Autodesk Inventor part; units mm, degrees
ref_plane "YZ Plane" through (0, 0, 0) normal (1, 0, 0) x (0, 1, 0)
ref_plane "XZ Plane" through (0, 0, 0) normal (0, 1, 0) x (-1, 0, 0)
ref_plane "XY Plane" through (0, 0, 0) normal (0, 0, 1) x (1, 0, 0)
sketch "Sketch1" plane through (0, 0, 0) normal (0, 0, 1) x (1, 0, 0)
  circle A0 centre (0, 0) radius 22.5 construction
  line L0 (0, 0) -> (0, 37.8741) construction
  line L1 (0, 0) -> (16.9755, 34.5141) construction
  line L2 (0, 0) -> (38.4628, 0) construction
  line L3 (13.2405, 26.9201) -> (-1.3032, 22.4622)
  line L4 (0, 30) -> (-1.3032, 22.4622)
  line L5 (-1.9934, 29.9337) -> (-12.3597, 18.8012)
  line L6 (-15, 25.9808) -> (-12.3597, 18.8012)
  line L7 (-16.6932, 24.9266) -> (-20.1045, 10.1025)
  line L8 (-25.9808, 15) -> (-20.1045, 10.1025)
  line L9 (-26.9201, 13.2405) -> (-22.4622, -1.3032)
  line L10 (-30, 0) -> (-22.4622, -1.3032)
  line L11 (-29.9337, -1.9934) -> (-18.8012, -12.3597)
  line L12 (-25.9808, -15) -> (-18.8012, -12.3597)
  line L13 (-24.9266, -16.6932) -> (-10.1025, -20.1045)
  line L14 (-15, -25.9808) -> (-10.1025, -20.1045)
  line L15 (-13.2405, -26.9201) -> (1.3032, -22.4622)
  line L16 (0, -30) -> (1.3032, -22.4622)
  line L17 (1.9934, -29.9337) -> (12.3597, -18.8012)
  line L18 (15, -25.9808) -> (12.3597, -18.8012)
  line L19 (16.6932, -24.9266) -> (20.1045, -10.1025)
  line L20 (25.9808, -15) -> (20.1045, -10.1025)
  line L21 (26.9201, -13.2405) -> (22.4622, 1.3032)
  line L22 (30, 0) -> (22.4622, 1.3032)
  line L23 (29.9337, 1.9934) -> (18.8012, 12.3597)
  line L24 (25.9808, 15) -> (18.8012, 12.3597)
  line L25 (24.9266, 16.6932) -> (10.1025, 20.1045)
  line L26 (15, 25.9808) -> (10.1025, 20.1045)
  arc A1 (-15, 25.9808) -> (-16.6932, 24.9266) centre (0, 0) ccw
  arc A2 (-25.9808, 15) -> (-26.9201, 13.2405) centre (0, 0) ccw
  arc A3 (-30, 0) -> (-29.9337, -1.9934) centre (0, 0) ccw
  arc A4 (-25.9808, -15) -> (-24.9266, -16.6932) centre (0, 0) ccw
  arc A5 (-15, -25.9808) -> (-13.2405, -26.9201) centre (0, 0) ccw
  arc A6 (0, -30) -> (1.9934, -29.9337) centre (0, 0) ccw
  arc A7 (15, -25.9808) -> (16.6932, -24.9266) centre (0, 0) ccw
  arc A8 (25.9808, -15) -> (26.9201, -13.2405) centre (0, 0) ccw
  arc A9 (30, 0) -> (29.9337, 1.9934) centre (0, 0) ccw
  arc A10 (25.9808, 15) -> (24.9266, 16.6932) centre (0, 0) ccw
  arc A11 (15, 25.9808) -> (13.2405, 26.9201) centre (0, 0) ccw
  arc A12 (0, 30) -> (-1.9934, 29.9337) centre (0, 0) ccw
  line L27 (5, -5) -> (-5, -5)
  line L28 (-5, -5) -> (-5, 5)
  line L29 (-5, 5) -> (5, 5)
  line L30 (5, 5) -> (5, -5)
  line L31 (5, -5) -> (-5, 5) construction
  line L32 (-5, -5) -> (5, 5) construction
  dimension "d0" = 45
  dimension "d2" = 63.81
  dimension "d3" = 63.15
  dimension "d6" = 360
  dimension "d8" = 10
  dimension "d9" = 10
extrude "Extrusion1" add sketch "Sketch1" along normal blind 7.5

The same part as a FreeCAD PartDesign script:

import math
import FreeCAD as App
import Part
import Sketcher
from FreeCAD import Vector
Q = App.Units.Quantity


def add_polygon(sketch, points):
    """Adds a closed chain of lines whose ends are joined by coincident constraints."""
    first, n = sketch.GeometryCount, len(points)
    for a, b in zip(points, points[1:] + points[:1]):
        sketch.addGeometry(Part.LineSegment(App.Vector(*a, 0), App.Vector(*b, 0)), False)
    for i in range(n):
        sketch.addConstraint(Sketcher.Constraint("Coincident", first + i, 2, first + (i + 1) % n, 1))

doc = App.newDocument("Part")
body = doc.addObject("PartDesign::Body", "Body")

# Sketch on XY plane
sketch1 = doc.addObject("Sketcher::SketchObject", "Sketch")
body.addObject(sketch1)
sketch1.AttachmentSupport = (doc.XY_Plane, [""])
sketch1.MapMode = "FlatFace"
sketch1.addGeometry(Part.ArcOfCircle(Part.Circle(Vector(-0.004802, -0.008646, 0), Vector(0, 0, 1), 30.009922), math.radians(60.00035), math.radians(63.809052)), False)  # 0
sketch1.addGeometry(Part.LineSegment(Vector(13.2405, 26.9201, 0), Vector(-1.3032, 22.4622, 0)), False)  # 1
sketch1.addGeometry(Part.LineSegment(Vector(-1.3032, 22.4622, 0), Vector(0, 30, 0)), False)  # 2
sketch1.addGeometry(Part.ArcOfCircle(Part.Circle(Vector(0, 0, 0), Vector(0, 0, 1), 30.000033), math.radians(90), math.radians(93.809921)), False)  # 3
sketch1.addGeometry(Part.LineSegment(Vector(-1.9934, 29.9337, 0), Vector(-12.3597, 18.8012, 0)), False)  # 4
sketch1.addGeometry(Part.LineSegment(Vector(-12.3597, 18.8012, 0), Vector(-15, 25.9808, 0)), False)  # 5
sketch1.addGeometry(Part.ArcOfCircle(Part.Circle(Vector(-0.028295, 0.047179, 0), Vector(0, 0, 1), 29.945027), math.radians(119.998214), math.radians(123.815239)), False)  # 6
sketch1.addGeometry(Part.LineSegment(Vector(-16.6932, 24.9266, 0), Vector(-20.1045, 10.1025, 0)), False)  # 7
sketch1.addGeometry(Part.LineSegment(Vector(-20.1045, 10.1025, 0), Vector(-25.9808, 15, 0)), False)  # 8
sketch1.addGeometry(Part.ArcOfCircle(Part.Circle(Vector(0.008646, -0.004802, 0), Vector(0, 0, 1), 30.009922), math.radians(150.00035), math.radians(153.809052)), False)  # 9
sketch1.addGeometry(Part.LineSegment(Vector(-26.9201, 13.2405, 0), Vector(-22.4622, -1.3032, 0)), False)  # 10
sketch1.addGeometry(Part.LineSegment(Vector(-22.4622, -1.3032, 0), Vector(-30, 0, 0)), False)  # 11
sketch1.addGeometry(Part.ArcOfCircle(Part.Circle(Vector(0, 0, 0), Vector(0, 0, 1), 30.000033), math.radians(180), math.radians(183.809921)), False)  # 12
sketch1.addGeometry(Part.LineSegment(Vector(-29.9337, -1.9934, 0), Vector(-18.8012, -12.3597, 0)), False)  # 13
sketch1.addGeometry(Part.LineSegment(Vector(-18.8012, -12.3597, 0), Vector(-25.9808, -15, 0)), False)  # 14
sketch1.addGeometry(Part.ArcOfCircle(Part.Circle(Vector(-0.047179, -0.028295, 0), Vector(0, 0, 1), 29.945027), math.radians(-150.001786), math.radians(-146.184761)), False)  # 15
sketch1.addGeometry(Part.LineSegment(Vector(-24.9266, -16.6932, 0), Vector(-10.1025, -20.1045, 0)), False)  # 16
sketch1.addGeometry(Part.LineSegment(Vector(-10.1025, -20.1045, 0), Vector(-15, -25.9808, 0)), False)  # 17
sketch1.addGeometry(Part.ArcOfCircle(Part.Circle(Vector(0.004802, 0.008646, 0), Vector(0, 0, 1), 30.009922), math.radians(-119.99965), math.radians(-116.190948)), False)  # 18
sketch1.addGeometry(Part.LineSegment(Vector(-13.2405, -26.9201, 0), Vector(1.3032, -22.4622, 0)), False)  # 19
sketch1.addGeometry(Part.LineSegment(Vector(1.3032, -22.4622, 0), Vector(0, -30, 0)), False)  # 20
sketch1.addGeometry(Part.ArcOfCircle(Part.Circle(Vector(0, 0, 0), Vector(0, 0, 1), 30.000033), math.radians(-90), math.radians(-86.190079)), False)  # 21
sketch1.addGeometry(Part.LineSegment(Vector(1.9934, -29.9337, 0), Vector(12.3597, -18.8012, 0)), False)  # 22
sketch1.addGeometry(Part.LineSegment(Vector(12.3597, -18.8012, 0), Vector(15, -25.9808, 0)), False)  # 23
sketch1.addGeometry(Part.ArcOfCircle(Part.Circle(Vector(0.028295, -0.047179, 0), Vector(0, 0, 1), 29.945027), math.radians(-60.001786), math.radians(-56.184761)), False)  # 24
sketch1.addGeometry(Part.LineSegment(Vector(16.6932, -24.9266, 0), Vector(20.1045, -10.1025, 0)), False)  # 25
sketch1.addGeometry(Part.LineSegment(Vector(20.1045, -10.1025, 0), Vector(25.9808, -15, 0)), False)  # 26
sketch1.addGeometry(Part.ArcOfCircle(Part.Circle(Vector(-0.008646, 0.004802, 0), Vector(0, 0, 1), 30.009922), math.radians(-29.99965), math.radians(-26.190948)), False)  # 27
sketch1.addGeometry(Part.LineSegment(Vector(26.9201, -13.2405, 0), Vector(22.4622, 1.3032, 0)), False)  # 28
sketch1.addGeometry(Part.LineSegment(Vector(22.4622, 1.3032, 0), Vector(30, 0, 0)), False)  # 29
sketch1.addGeometry(Part.ArcOfCircle(Part.Circle(Vector(0, 0, 0), Vector(0, 0, 1), 30.000033), math.radians(0), math.radians(3.809921)), False)  # 30
sketch1.addGeometry(Part.LineSegment(Vector(29.9337, 1.9934, 0), Vector(18.8012, 12.3597, 0)), False)  # 31
sketch1.addGeometry(Part.LineSegment(Vector(18.8012, 12.3597, 0), Vector(25.9808, 15, 0)), False)  # 32
sketch1.addGeometry(Part.ArcOfCircle(Part.Circle(Vector(0.047179, 0.028295, 0), Vector(0, 0, 1), 29.945027), math.radians(29.998214), math.radians(33.815239)), False)  # 33
sketch1.addGeometry(Part.LineSegment(Vector(24.9266, 16.6932, 0), Vector(10.1025, 20.1045, 0)), False)  # 34
sketch1.addGeometry(Part.LineSegment(Vector(10.1025, 20.1045, 0), Vector(15, 25.9808, 0)), False)  # 35
add_polygon(sketch1, [(5, 5), (5, -5), (-5, -5), (-5, 5)])  # lines 36-39
sketch1.addConstraint(Sketcher.Constraint("Coincident", 0, 2, 1, 1))
sketch1.addConstraint(Sketcher.Constraint("Coincident", 1, 2, 2, 1))
sketch1.addConstraint(Sketcher.Constraint("Coincident", 2, 2, 3, 1))
sketch1.addConstraint(Sketcher.Constraint("Coincident", 3, 2, 4, 1))
sketch1.addConstraint(Sketcher.Constraint("Coincident", 4, 2, 5, 1))
sketch1.addConstraint(Sketcher.Constraint("Coincident", 5, 2, 6, 1))
sketch1.addConstraint(Sketcher.Constraint("Coincident", 6, 2, 7, 1))
sketch1.addConstraint(Sketcher.Constraint("Coincident", 7, 2, 8, 1))
sketch1.addConstraint(Sketcher.Constraint("Coincident", 8, 2, 9, 1))
sketch1.addConstraint(Sketcher.Constraint("Coincident", 9, 2, 10, 1))
sketch1.addConstraint(Sketcher.Constraint("Coincident", 10, 2, 11, 1))
sketch1.addConstraint(Sketcher.Constraint("Coincident", 11, 2, 12, 1))
sketch1.addConstraint(Sketcher.Constraint("Coincident", 12, 2, 13, 1))
sketch1.addConstraint(Sketcher.Constraint("Coincident", 13, 2, 14, 1))
sketch1.addConstraint(Sketcher.Constraint("Coincident", 14, 2, 15, 1))
sketch1.addConstraint(Sketcher.Constraint("Coincident", 15, 2, 16, 1))
sketch1.addConstraint(Sketcher.Constraint("Coincident", 16, 2, 17, 1))
sketch1.addConstraint(Sketcher.Constraint("Coincident", 17, 2, 18, 1))
sketch1.addConstraint(Sketcher.Constraint("Coincident", 18, 2, 19, 1))
sketch1.addConstraint(Sketcher.Constraint("Coincident", 19, 2, 20, 1))
sketch1.addConstraint(Sketcher.Constraint("Coincident", 20, 2, 21, 1))
sketch1.addConstraint(Sketcher.Constraint("Coincident", 21, 2, 22, 1))
sketch1.addConstraint(Sketcher.Constraint("Coincident", 22, 2, 23, 1))
sketch1.addConstraint(Sketcher.Constraint("Coincident", 23, 2, 24, 1))
sketch1.addConstraint(Sketcher.Constraint("Coincident", 24, 2, 25, 1))
sketch1.addConstraint(Sketcher.Constraint("Coincident", 25, 2, 26, 1))
sketch1.addConstraint(Sketcher.Constraint("Coincident", 26, 2, 27, 1))
sketch1.addConstraint(Sketcher.Constraint("Coincident", 27, 2, 28, 1))
sketch1.addConstraint(Sketcher.Constraint("Coincident", 28, 2, 29, 1))
sketch1.addConstraint(Sketcher.Constraint("Coincident", 29, 2, 30, 1))
sketch1.addConstraint(Sketcher.Constraint("Coincident", 30, 2, 31, 1))
sketch1.addConstraint(Sketcher.Constraint("Coincident", 31, 2, 32, 1))
sketch1.addConstraint(Sketcher.Constraint("Coincident", 32, 2, 33, 1))
sketch1.addConstraint(Sketcher.Constraint("Coincident", 33, 2, 34, 1))
sketch1.addConstraint(Sketcher.Constraint("Coincident", 34, 2, 35, 1))
sketch1.addConstraint(Sketcher.Constraint("Coincident", 35, 2, 0, 1))
sketch1.addConstraint(Sketcher.Constraint("Vertical", 36))
sketch1.addConstraint(Sketcher.Constraint("Horizontal", 37))
sketch1.addConstraint(Sketcher.Constraint("Vertical", 38))
sketch1.addConstraint(Sketcher.Constraint("Horizontal", 39))
sketch1.addConstraint(Sketcher.Constraint("Coincident", 3, 3, -1, 1))
sketch1.addConstraint(Sketcher.Constraint("Coincident", 12, 3, -1, 1))
sketch1.addConstraint(Sketcher.Constraint("Coincident", 21, 3, -1, 1))
sketch1.addConstraint(Sketcher.Constraint("Coincident", 30, 3, -1, 1))
sketch1.addConstraint(Sketcher.Constraint("PointOnObject", 2, 2, -2))
sketch1.addConstraint(Sketcher.Constraint("PointOnObject", 11, 2, -1))
sketch1.addConstraint(Sketcher.Constraint("PointOnObject", 20, 2, -2))
sketch1.addConstraint(Sketcher.Constraint("PointOnObject", 29, 2, -1))
sketch1.addConstraint(Sketcher.Constraint("DistanceX", 37, 2, 37, 1, Q("10 mm")))
sketch1.addConstraint(Sketcher.Constraint("DistanceY", 36, 2, 36, 1, Q("10 mm")))
sketch1.addConstraint(Sketcher.Constraint("Radius", 3, Q("30 mm")))
sketch1.addConstraint(Sketcher.Constraint("Radius", 12, Q("30 mm")))
sketch1.addConstraint(Sketcher.Constraint("Radius", 21, Q("30 mm")))
sketch1.addConstraint(Sketcher.Constraint("Radius", 30, Q("30 mm")))
sketch1.addConstraint(Sketcher.Constraint("Radius", 0, Q("30.01 mm")))
sketch1.addConstraint(Sketcher.Constraint("Radius", 9, Q("30.01 mm")))
sketch1.addConstraint(Sketcher.Constraint("Radius", 18, Q("30.01 mm")))
sketch1.addConstraint(Sketcher.Constraint("Radius", 27, Q("30.01 mm")))
sketch1.addConstraint(Sketcher.Constraint("DistanceX", 5, 2, -1, 1, Q("15 mm")))
sketch1.addConstraint(Sketcher.Constraint("DistanceY", -1, 1, 8, 2, Q("15 mm")))
sketch1.addConstraint(Sketcher.Constraint("DistanceY", 14, 2, -1, 1, Q("15 mm")))
sketch1.addConstraint(Sketcher.Constraint("DistanceX", 17, 2, -1, 1, Q("15 mm")))
sketch1.addConstraint(Sketcher.Constraint("DistanceX", -1, 1, 23, 2, Q("15 mm")))
sketch1.addConstraint(Sketcher.Constraint("DistanceY", 26, 2, -1, 1, Q("15 mm")))
sketch1.addConstraint(Sketcher.Constraint("DistanceY", -1, 1, 32, 2, Q("15 mm")))
sketch1.addConstraint(Sketcher.Constraint("DistanceX", -1, 1, 35, 2, Q("15 mm")))
sketch1.addConstraint(Sketcher.Constraint("DistanceX", -1, 1, 36, 2, Q("5 mm")))
sketch1.addConstraint(Sketcher.Constraint("DistanceY", 36, 2, -1, 1, Q("5 mm")))
sketch1.addConstraint(Sketcher.Constraint("Radius", 6, Q("29.945 mm")))
sketch1.addConstraint(Sketcher.Constraint("Radius", 15, Q("29.945 mm")))
sketch1.addConstraint(Sketcher.Constraint("Radius", 24, Q("29.945 mm")))
sketch1.addConstraint(Sketcher.Constraint("Radius", 33, Q("29.945 mm")))
sketch1.addConstraint(Sketcher.Constraint("DistanceY", -1, 1, 0, 2, Q("26.92 mm")))
sketch1.addConstraint(Sketcher.Constraint("DistanceX", 9, 2, -1, 1, Q("26.92 mm")))
sketch1.addConstraint(Sketcher.Constraint("DistanceY", 18, 2, -1, 1, Q("26.92 mm")))
sketch1.addConstraint(Sketcher.Constraint("DistanceX", -1, 1, 27, 2, Q("26.92 mm")))
sketch1.addConstraint(Sketcher.Constraint("DistanceX", 6, 2, 1, 2, Q("15.39 mm")))
sketch1.addConstraint(Sketcher.Constraint("DistanceY", 15, 2, 10, 2, Q("15.39 mm")))
sketch1.addConstraint(Sketcher.Constraint("DistanceX", 19, 2, 24, 2, Q("15.39 mm")))
sketch1.addConstraint(Sketcher.Constraint("DistanceY", 28, 2, 33, 2, Q("15.39 mm")))
sketch1.addConstraint(Sketcher.Constraint("DistanceX", 6, 3, 9, 3, Q("0.037 mm")))
sketch1.addConstraint(Sketcher.Constraint("DistanceY", 9, 3, 6, 3, Q("0.052 mm")))
sketch1.addConstraint(Sketcher.Constraint("DistanceX", 15, 3, 6, 3, Q("0.019 mm")))
sketch1.addConstraint(Sketcher.Constraint("DistanceX", 6, 3, 18, 3, Q("0.033 mm")))
sketch1.addConstraint(Sketcher.Constraint("DistanceX", 0, 3, 24, 3, Q("0.033 mm")))
sketch1.addConstraint(Sketcher.Constraint("DistanceY", 9, 3, 33, 3, Q("0.033 mm")))
sketch1.addConstraint(Sketcher.Constraint("DistanceY", 6, 3, 0, 2, Q("26.873 mm")))
sketch1.addConstraint(Sketcher.Constraint("DistanceY", 1, 2, 0, 2, Q("4.458 mm")))
sketch1.addConstraint(Sketcher.Constraint("DistanceX", 1, 2, 6, 3, Q("1.275 mm")))
sketch1.addConstraint(Sketcher.Constraint("DistanceX", 3, 2, 0, 2, Q("15.234 mm")))
sketch1.addConstraint(Sketcher.Constraint("DistanceX", 3, 2, 6, 3, Q("1.965 mm")))
sketch1.addConstraint(Sketcher.Constraint("DistanceY", 4, 2, 1, 2, Q("3.661 mm")))
sketch1.addConstraint(Sketcher.Constraint("DistanceX", 4, 2, 27, 3, Q("12.351 mm")))
sketch1.addConstraint(Sketcher.Constraint("DistanceY", 5, 2, 3, 2, Q("3.953 mm")))
sketch1.addConstraint(Sketcher.Constraint("DistanceY", 7, 2, 6, 2, Q("14.824 mm")))
sketch1.addConstraint(Sketcher.Constraint("DistanceX", 8, 2, 4, 2, Q("13.621 mm")))
sketch1.addConstraint(Sketcher.Constraint("DistanceX", 9, 2, 10, 2, Q("4.458 mm")))
sketch1.addConstraint(Sketcher.Constraint("DistanceY", 10, 2, 15, 3, Q("1.275 mm")))
sketch1.addConstraint(Sketcher.Constraint("DistanceY", 12, 2, 9, 2, Q("15.234 mm")))
sketch1.addConstraint(Sketcher.Constraint("DistanceX", 10, 2, 13, 2, Q("3.661 mm")))
sketch1.addConstraint(Sketcher.Constraint("DistanceY", 13, 2, 0, 3, Q("12.351 mm")))
sketch1.addConstraint(Sketcher.Constraint("DistanceX", 12, 2, 14, 2, Q("3.953 mm")))
sketch1.addConstraint(Sketcher.Constraint("DistanceX", 15, 2, 16, 2, Q("14.824 mm")))
sketch1.addConstraint(Sketcher.Constraint("DistanceY", 17, 2, 13, 2, Q("13.621 mm")))
sketch1.addConstraint(Sketcher.Constraint("DistanceX", 18, 2, 16, 2, Q("3.138 mm")))
sketch1.addConstraint(Sketcher.Constraint("DistanceY", 18, 2, 19, 2, Q("4.458 mm")))
sketch1.addConstraint(Sketcher.Constraint("DistanceX", 24, 3, 19, 2, Q("1.275 mm")))
sketch1.addConstraint(Sketcher.Constraint("DistanceY", 19, 2, 24, 3, Q("22.415 mm")))
sketch1.addConstraint(Sketcher.Constraint("DistanceX", 18, 2, 21, 2, Q("15.234 mm")))
sketch1.addConstraint(Sketcher.Constraint("DistanceY", 19, 2, 22, 2, Q("3.661 mm")))
sketch1.addConstraint(Sketcher.Constraint("DistanceX", 9, 3, 22, 2, Q("12.351 mm")))
sketch1.addConstraint(Sketcher.Constraint("DistanceY", 24, 2, 25, 2, Q("14.824 mm")))
sketch1.addConstraint(Sketcher.Constraint("DistanceX", 22, 2, 26, 2, Q("13.621 mm")))
sketch1.addConstraint(Sketcher.Constraint("DistanceX", 28, 2, 27, 2, Q("4.458 mm")))
sketch1.addConstraint(Sketcher.Constraint("DistanceX", 33, 3, 28, 2, Q("22.415 mm")))
sketch1.addConstraint(Sketcher.Constraint("DistanceY", 33, 3, 28, 2, Q("1.275 mm")))
sketch1.addConstraint(Sketcher.Constraint("DistanceY", 27, 2, 30, 2, Q("15.234 mm")))
sketch1.addConstraint(Sketcher.Constraint("DistanceX", 31, 2, 28, 2, Q("3.661 mm")))
sketch1.addConstraint(Sketcher.Constraint("DistanceX", 34, 2, 0, 2, Q("3.138 mm")))
sketch1.addConstraint(Sketcher.Constraint("DistanceY", 31, 2, 35, 2, Q("13.621 mm")))
sketch1.addConstraint(Sketcher.Constraint("Distance", 7, Q("15.2115 mm")))
sketch1.addConstraint(Sketcher.Constraint("Distance", 16, Q("15.2115 mm")))
sketch1.addConstraint(Sketcher.Constraint("Distance", 25, Q("15.2115 mm")))
sketch1.addConstraint(Sketcher.Constraint("Distance", 34, Q("15.2115 mm")))
pad1 = doc.addObject("PartDesign::Pad", "Pad")
body.addObject(pad1)
pad1.Profile = sketch1
pad1.Length = 7.5

doc.recompute()
